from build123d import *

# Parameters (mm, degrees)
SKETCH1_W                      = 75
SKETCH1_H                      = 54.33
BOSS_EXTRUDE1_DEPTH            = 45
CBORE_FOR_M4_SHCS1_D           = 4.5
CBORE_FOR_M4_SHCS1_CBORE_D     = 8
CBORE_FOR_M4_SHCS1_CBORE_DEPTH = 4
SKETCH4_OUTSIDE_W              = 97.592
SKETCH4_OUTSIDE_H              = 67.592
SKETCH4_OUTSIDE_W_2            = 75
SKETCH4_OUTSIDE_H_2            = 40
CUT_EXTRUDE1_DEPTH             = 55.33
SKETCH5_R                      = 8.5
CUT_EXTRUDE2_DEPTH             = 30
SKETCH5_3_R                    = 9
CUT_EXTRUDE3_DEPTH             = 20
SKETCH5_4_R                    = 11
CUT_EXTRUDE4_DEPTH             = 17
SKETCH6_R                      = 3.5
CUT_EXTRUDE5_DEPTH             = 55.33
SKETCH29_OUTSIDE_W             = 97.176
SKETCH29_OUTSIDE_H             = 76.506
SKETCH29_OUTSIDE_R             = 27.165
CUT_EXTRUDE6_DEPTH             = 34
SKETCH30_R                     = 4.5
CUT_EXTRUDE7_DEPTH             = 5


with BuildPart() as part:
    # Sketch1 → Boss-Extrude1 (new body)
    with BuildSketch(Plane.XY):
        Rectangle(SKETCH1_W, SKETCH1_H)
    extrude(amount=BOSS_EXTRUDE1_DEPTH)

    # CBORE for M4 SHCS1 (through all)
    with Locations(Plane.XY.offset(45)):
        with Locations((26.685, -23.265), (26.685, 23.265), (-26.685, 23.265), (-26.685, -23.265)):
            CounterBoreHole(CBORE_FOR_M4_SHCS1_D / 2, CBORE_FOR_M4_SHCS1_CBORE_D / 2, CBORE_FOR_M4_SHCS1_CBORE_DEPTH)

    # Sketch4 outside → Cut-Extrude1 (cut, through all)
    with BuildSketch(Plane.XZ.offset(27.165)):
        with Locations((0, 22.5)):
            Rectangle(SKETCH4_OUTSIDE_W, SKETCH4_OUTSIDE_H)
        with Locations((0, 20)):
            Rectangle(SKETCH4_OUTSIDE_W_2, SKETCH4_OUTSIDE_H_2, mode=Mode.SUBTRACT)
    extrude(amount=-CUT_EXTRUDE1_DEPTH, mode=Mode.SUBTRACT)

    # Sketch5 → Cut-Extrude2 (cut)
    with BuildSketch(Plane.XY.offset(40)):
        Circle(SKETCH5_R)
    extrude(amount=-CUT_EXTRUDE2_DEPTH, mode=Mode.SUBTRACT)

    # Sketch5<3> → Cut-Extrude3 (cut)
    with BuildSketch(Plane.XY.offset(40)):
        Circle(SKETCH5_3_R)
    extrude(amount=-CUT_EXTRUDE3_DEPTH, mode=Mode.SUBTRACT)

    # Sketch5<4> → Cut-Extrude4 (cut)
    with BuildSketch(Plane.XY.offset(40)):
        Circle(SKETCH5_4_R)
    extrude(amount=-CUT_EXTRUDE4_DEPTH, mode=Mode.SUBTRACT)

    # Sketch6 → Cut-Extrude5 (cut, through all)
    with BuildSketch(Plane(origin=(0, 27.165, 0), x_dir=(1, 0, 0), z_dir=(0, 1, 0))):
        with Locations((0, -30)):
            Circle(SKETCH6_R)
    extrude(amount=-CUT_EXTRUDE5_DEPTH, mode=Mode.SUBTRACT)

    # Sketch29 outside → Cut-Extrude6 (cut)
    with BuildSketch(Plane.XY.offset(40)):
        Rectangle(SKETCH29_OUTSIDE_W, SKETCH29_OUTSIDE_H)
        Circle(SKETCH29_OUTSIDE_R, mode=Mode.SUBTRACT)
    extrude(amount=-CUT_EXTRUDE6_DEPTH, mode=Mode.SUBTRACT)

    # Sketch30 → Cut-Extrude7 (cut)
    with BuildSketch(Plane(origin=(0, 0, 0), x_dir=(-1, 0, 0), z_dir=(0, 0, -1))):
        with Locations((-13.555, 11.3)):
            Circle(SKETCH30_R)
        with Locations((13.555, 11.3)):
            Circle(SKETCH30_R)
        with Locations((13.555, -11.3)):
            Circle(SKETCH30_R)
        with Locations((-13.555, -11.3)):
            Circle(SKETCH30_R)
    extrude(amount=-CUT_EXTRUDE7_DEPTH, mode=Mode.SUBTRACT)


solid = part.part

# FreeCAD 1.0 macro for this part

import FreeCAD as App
import Part
import Sketcher
from FreeCAD import Vector
Q = App.Units.Quantity

doc = App.newDocument("Part")
body = doc.addObject("PartDesign::Body", "Body")

# Sketch on XY plane
sketch1 = doc.addObject("Sketcher::SketchObject", "Sketch")
body.addObject(sketch1)
sketch1.AttachmentSupport = (doc.XY_Plane, [""])
sketch1.MapMode = "FlatFace"
sketch1.addGeometry(Part.LineSegment(Vector(-38, 27, 0), Vector(-38, -27, 0)), False)
sketch1.addGeometry(Part.LineSegment(Vector(-38, -27, 0), Vector(38, -27, 0)), False)
sketch1.addGeometry(Part.LineSegment(Vector(38, -27, 0), Vector(38, 27, 0)), False)
sketch1.addGeometry(Part.LineSegment(Vector(38, 27, 0), Vector(-38, 27, 0)), False)
sketch1.addConstraint(Sketcher.Constraint("Coincident", 0, 2, 1, 1))
sketch1.addConstraint(Sketcher.Constraint("Coincident", 1, 2, 2, 1))
sketch1.addConstraint(Sketcher.Constraint("Coincident", 2, 2, 3, 1))
sketch1.addConstraint(Sketcher.Constraint("Coincident", 3, 2, 0, 1))
sketch1.addConstraint(Sketcher.Constraint("Vertical", 0))
sketch1.addConstraint(Sketcher.Constraint("Horizontal", 1))
sketch1.addConstraint(Sketcher.Constraint("Vertical", 2))
sketch1.addConstraint(Sketcher.Constraint("Horizontal", 3))
sketch1.addConstraint(Sketcher.Constraint("Symmetric", 0, 2, 2, 2, -1, 1))
sketch1.addConstraint(Sketcher.Constraint("DistanceX", 1, 1, 1, 2, Q("75 mm")))
sketch1.addConstraint(Sketcher.Constraint("DistanceY", 0, 2, 0, 1, Q("54.33 mm")))
pad1 = doc.addObject("PartDesign::Pad", "Pad")
body.addObject(pad1)
pad1.Profile = sketch1
pad1.Length = 45

# Sketch on XY plane
sketch2 = doc.addObject("Sketcher::SketchObject", "Sketch001")
body.addObject(sketch2)
sketch2.AttachmentSupport = (doc.XY_Plane, [""])
sketch2.MapMode = "FlatFace"
sketch2.AttachmentOffset = App.Placement(Vector(0, 0, 45), App.Rotation())
sketch2.addGeometry(Part.Circle(Vector(26.7, -23.3, 0), Vector(0, 0, 1), 2.2), False)
sketch2.addGeometry(Part.Circle(Vector(26.7, 23.3, 0), Vector(0, 0, 1), 2.2), False)
sketch2.addGeometry(Part.Circle(Vector(-26.7, 23.3, 0), Vector(0, 0, 1), 2.2), False)
sketch2.addGeometry(Part.Circle(Vector(-26.7, -23.3, 0), Vector(0, 0, 1), 2.2), False)
sketch2.addConstraint(Sketcher.Constraint("Equal", 0, 1))
sketch2.addConstraint(Sketcher.Constraint("Equal", 1, 2))
sketch2.addConstraint(Sketcher.Constraint("Equal", 2, 3))
sketch2.addConstraint(Sketcher.Constraint("Symmetric", 0, 3, 2, 3, -1, 1))
sketch2.addConstraint(Sketcher.Constraint("Symmetric", 1, 3, 3, 3, -1, 1))
sketch2.addConstraint(Sketcher.Constraint("Symmetric", 1, 3, 2, 3, -2))
sketch2.addConstraint(Sketcher.Constraint("Diameter", 0, Q("4.5 mm")))
sketch2.addConstraint(Sketcher.Constraint("DistanceY", 0, 3, 1, 3, Q("46.53 mm")))
sketch2.addConstraint(Sketcher.Constraint("DistanceX", 2, 3, 1, 3, Q("53.37 mm")))
doc.recompute()
hole = doc.addObject("PartDesign::Hole", "Hole")
body.addObject(hole)
hole.Profile = sketch2
hole.ThreadType = "None"
hole.Diameter = 4.5
hole.DepthType = "ThroughAll"
hole.HoleCutType = "Counterbore"
hole.HoleCutDiameter = 8
hole.HoleCutDepth = 4

# Sketch on XZ plane
sketch3 = doc.addObject("Sketcher::SketchObject", "Sketch002")
body.addObject(sketch3)
sketch3.AttachmentSupport = (doc.XZ_Plane, [""])
sketch3.MapMode = "FlatFace"
sketch3.AttachmentOffset = App.Placement(Vector(0, 0, 27.165), App.Rotation())
sketch3.addGeometry(Part.LineSegment(Vector(-49, 56, 0), Vector(-49, -11, 0)), False)
sketch3.addGeometry(Part.LineSegment(Vector(-49, -11, 0), Vector(49, -11, 0)), False)
sketch3.addGeometry(Part.LineSegment(Vector(49, -11, 0), Vector(49, 56, 0)), False)
sketch3.addGeometry(Part.LineSegment(Vector(49, 56, 0), Vector(-49, 56, 0)), False)
sketch3.addGeometry(Part.LineSegment(Vector(38, 0, 0), Vector(-38, 0, 0)), False)
sketch3.addGeometry(Part.LineSegment(Vector(-38, 0, 0), Vector(-38, 40, 0)), False)
sketch3.addGeometry(Part.LineSegment(Vector(-38, 40, 0), Vector(38, 40, 0)), False)
sketch3.addGeometry(Part.LineSegment(Vector(38, 40, 0), Vector(38, 0, 0)), False)
sketch3.addConstraint(Sketcher.Constraint("Coincident", 0, 2, 1, 1))
sketch3.addConstraint(Sketcher.Constraint("Coincident", 1, 2, 2, 1))
sketch3.addConstraint(Sketcher.Constraint("Coincident", 2, 2, 3, 1))
sketch3.addConstraint(Sketcher.Constraint("Coincident", 3, 2, 0, 1))
sketch3.addConstraint(Sketcher.Constraint("Coincident", 4, 2, 5, 1))
sketch3.addConstraint(Sketcher.Constraint("Coincident", 5, 2, 6, 1))
sketch3.addConstraint(Sketcher.Constraint("Coincident", 6, 2, 7, 1))
sketch3.addConstraint(Sketcher.Constraint("Coincident", 7, 2, 4, 1))
sketch3.addConstraint(Sketcher.Constraint("Vertical", 0))
sketch3.addConstraint(Sketcher.Constraint("Horizontal", 1))
sketch3.addConstraint(Sketcher.Constraint("Vertical", 2))
sketch3.addConstraint(Sketcher.Constraint("Horizontal", 3))
sketch3.addConstraint(Sketcher.Constraint("Horizontal", 4))
sketch3.addConstraint(Sketcher.Constraint("Vertical", 5))
sketch3.addConstraint(Sketcher.Constraint("Horizontal", 6))
sketch3.addConstraint(Sketcher.Constraint("Vertical", 7))
sketch3.addConstraint(Sketcher.Constraint("Symmetric", 4, 2, 7, 2, -1, 1))
sketch3.addConstraint(Sketcher.Constraint("DistanceX", 4, 2, 4, 1, Q("75 mm")))
sketch3.addConstraint(Sketcher.Constraint("DistanceY", 5, 1, 5, 2, Q("40 mm")))
sketch3.addConstraint(Sketcher.Constraint("DistanceX", 1, 1, 1, 2, Q("97.592 mm")))
sketch3.addConstraint(Sketcher.Constraint("DistanceY", 0, 2, 0, 1, Q("67.592 mm")))
sketch3.addConstraint(Sketcher.Constraint("DistanceX", 0, 2, -1, 1, Q("48.796 mm")))
sketch3.addConstraint(Sketcher.Constraint("DistanceY", 0, 2, -1, 1, Q("11.296 mm")))
pocket1 = doc.addObject("PartDesign::Pocket", "Pocket")
body.addObject(pocket1)
pocket1.Profile = sketch3
pocket1.Type = "ThroughAll"

# Sketch on XY plane
sketch4 = doc.addObject("Sketcher::SketchObject", "Sketch003")
body.addObject(sketch4)
sketch4.AttachmentSupport = (doc.XY_Plane, [""])
sketch4.MapMode = "FlatFace"
sketch4.AttachmentOffset = App.Placement(Vector(0, 0, 40), App.Rotation())
sketch4.addGeometry(Part.Circle(Vector(0, 0, 0), Vector(0, 0, 1), 8), False)
sketch4.addConstraint(Sketcher.Constraint("Coincident", 0, 3, -1, 1))
sketch4.addConstraint(Sketcher.Constraint("Diameter", 0, Q("17 mm")))
pocket2 = doc.addObject("PartDesign::Pocket", "Pocket001")
body.addObject(pocket2)
pocket2.Profile = sketch4
pocket2.Length = 30

# Sketch on XY plane
sketch5 = doc.addObject("Sketcher::SketchObject", "Sketch004")
body.addObject(sketch5)
sketch5.AttachmentSupport = (doc.XY_Plane, [""])
sketch5.MapMode = "FlatFace"
sketch5.AttachmentOffset = App.Placement(Vector(0, 0, 40), App.Rotation())
sketch5.addGeometry(Part.Circle(Vector(0, 0, 0), Vector(0, 0, 1), 9), False)
sketch5.addConstraint(Sketcher.Constraint("Coincident", 0, 3, -1, 1))
sketch5.addConstraint(Sketcher.Constraint("Diameter", 0, Q("18 mm")))
pocket3 = doc.addObject("PartDesign::Pocket", "Pocket002")
body.addObject(pocket3)
pocket3.Profile = sketch5
pocket3.Length = 20

# Sketch on XY plane
sketch6 = doc.addObject("Sketcher::SketchObject", "Sketch005")
body.addObject(sketch6)
sketch6.AttachmentSupport = (doc.XY_Plane, [""])
sketch6.MapMode = "FlatFace"
sketch6.AttachmentOffset = App.Placement(Vector(0, 0, 40), App.Rotation())
sketch6.addGeometry(Part.Circle(Vector(0, 0, 0), Vector(0, 0, 1), 11), False)
sketch6.addConstraint(Sketcher.Constraint("Coincident", 0, 3, -1, 1))
sketch6.addConstraint(Sketcher.Constraint("Diameter", 0, Q("22 mm")))
pocket4 = doc.addObject("PartDesign::Pocket", "Pocket003")
body.addObject(pocket4)
pocket4.Profile = sketch6
pocket4.Length = 17

# Sketch on XZ plane
sketch7 = doc.addObject("Sketcher::SketchObject", "Sketch006")
body.addObject(sketch7)
sketch7.AttachmentSupport = (doc.XZ_Plane, [""])
sketch7.MapMode = "FlatFace"
sketch7.AttachmentOffset = App.Placement(Vector(0, 0, -27.165), App.Rotation())
sketch7.addGeometry(Part.Circle(Vector(0, 30, 0), Vector(0, 0, 1), 3.5), False)
sketch7.addConstraint(Sketcher.Constraint("PointOnObject", 0, 3, -2))
sketch7.addConstraint(Sketcher.Constraint("Diameter", 0, Q("7 mm")))
sketch7.addConstraint(Sketcher.Constraint("DistanceY", -1, 1, 0, 3, Q("30 mm")))
pocket5 = doc.addObject("PartDesign::Pocket", "Pocket004")
body.addObject(pocket5)
pocket5.Profile = sketch7
pocket5.Type = "ThroughAll"
pocket5.Reversed = True

# Sketch on XY plane
sketch8 = doc.addObject("Sketcher::SketchObject", "Sketch007")
body.addObject(sketch8)
sketch8.AttachmentSupport = (doc.XY_Plane, [""])
sketch8.MapMode = "FlatFace"
sketch8.AttachmentOffset = App.Placement(Vector(0, 0, 40), App.Rotation())
sketch8.addGeometry(Part.LineSegment(Vector(-49, 38, 0), Vector(-49, -38, 0)), False)
sketch8.addGeometry(Part.LineSegment(Vector(-49, -38, 0), Vector(49, -38, 0)), False)
sketch8.addGeometry(Part.LineSegment(Vector(49, -38, 0), Vector(49, 38, 0)), False)
sketch8.addGeometry(Part.LineSegment(Vector(49, 38, 0), Vector(-49, 38, 0)), False)
sketch8.addGeometry(Part.Circle(Vector(0, 0, 0), Vector(0, 0, 1), 27), False)
sketch8.addConstraint(Sketcher.Constraint("Coincident", 0, 2, 1, 1))
sketch8.addConstraint(Sketcher.Constraint("Coincident", 1, 2, 2, 1))
sketch8.addConstraint(Sketcher.Constraint("Coincident", 2, 2, 3, 1))
sketch8.addConstraint(Sketcher.Constraint("Coincident", 3, 2, 0, 1))
sketch8.addConstraint(Sketcher.Constraint("Vertical", 0))
sketch8.addConstraint(Sketcher.Constraint("Horizontal", 1))
sketch8.addConstraint(Sketcher.Constraint("Vertical", 2))
sketch8.addConstraint(Sketcher.Constraint("Horizontal", 3))
sketch8.addConstraint(Sketcher.Constraint("Coincident", 4, 3, -1, 1))
sketch8.addConstraint(Sketcher.Constraint("Symmetric", 0, 2, 2, 2, -1, 1))
sketch8.addConstraint(Sketcher.Constraint("Diameter", 4, Q("54.33 mm")))
sketch8.addConstraint(Sketcher.Constraint("DistanceX", 1, 1, 1, 2, Q("97.176 mm")))
sketch8.addConstraint(Sketcher.Constraint("DistanceY", 0, 2, 0, 1, Q("76.506 mm")))
pocket6 = doc.addObject("PartDesign::Pocket", "Pocket005")
body.addObject(pocket6)
pocket6.Profile = sketch8
pocket6.Length = 34

# Sketch on XY plane
sketch9 = doc.addObject("Sketcher::SketchObject", "Sketch008")
body.addObject(sketch9)
sketch9.AttachmentSupport = (doc.XY_Plane, [""])
sketch9.MapMode = "FlatFace"
sketch9.addGeometry(Part.Circle(Vector(13.6, 11.3, 0), Vector(0, 0, 1), 4.5), False)
sketch9.addGeometry(Part.Circle(Vector(-13.6, 11.3, 0), Vector(0, 0, 1), 4.5), False)
sketch9.addGeometry(Part.Circle(Vector(-13.6, -11.3, 0), Vector(0, 0, 1), 4.5), False)
sketch9.addGeometry(Part.Circle(Vector(13.6, -11.3, 0), Vector(0, 0, 1), 4.5), False)
sketch9.addConstraint(Sketcher.Constraint("Equal", 0, 1))
sketch9.addConstraint(Sketcher.Constraint("Equal", 1, 2))
sketch9.addConstraint(Sketcher.Constraint("Equal", 2, 3))
sketch9.addConstraint(Sketcher.Constraint("Symmetric", 0, 3, 2, 3, -1, 1))
sketch9.addConstraint(Sketcher.Constraint("Symmetric", 1, 3, 3, 3, -1, 1))
sketch9.addConstraint(Sketcher.Constraint("Symmetric", 0, 3, 1, 3, -2))
sketch9.addConstraint(Sketcher.Constraint("Diameter", 0, Q("9 mm")))
sketch9.addConstraint(Sketcher.Constraint("DistanceY", -1, 1, 0, 3, Q("11.3 mm")))
sketch9.addConstraint(Sketcher.Constraint("DistanceX", 1, 3, 0, 3, Q("27.11 mm")))
pocket7 = doc.addObject("PartDesign::Pocket", "Pocket006")
body.addObject(pocket7)
pocket7.Profile = sketch9
pocket7.Length = 5
pocket7.Reversed = True

doc.recompute()
